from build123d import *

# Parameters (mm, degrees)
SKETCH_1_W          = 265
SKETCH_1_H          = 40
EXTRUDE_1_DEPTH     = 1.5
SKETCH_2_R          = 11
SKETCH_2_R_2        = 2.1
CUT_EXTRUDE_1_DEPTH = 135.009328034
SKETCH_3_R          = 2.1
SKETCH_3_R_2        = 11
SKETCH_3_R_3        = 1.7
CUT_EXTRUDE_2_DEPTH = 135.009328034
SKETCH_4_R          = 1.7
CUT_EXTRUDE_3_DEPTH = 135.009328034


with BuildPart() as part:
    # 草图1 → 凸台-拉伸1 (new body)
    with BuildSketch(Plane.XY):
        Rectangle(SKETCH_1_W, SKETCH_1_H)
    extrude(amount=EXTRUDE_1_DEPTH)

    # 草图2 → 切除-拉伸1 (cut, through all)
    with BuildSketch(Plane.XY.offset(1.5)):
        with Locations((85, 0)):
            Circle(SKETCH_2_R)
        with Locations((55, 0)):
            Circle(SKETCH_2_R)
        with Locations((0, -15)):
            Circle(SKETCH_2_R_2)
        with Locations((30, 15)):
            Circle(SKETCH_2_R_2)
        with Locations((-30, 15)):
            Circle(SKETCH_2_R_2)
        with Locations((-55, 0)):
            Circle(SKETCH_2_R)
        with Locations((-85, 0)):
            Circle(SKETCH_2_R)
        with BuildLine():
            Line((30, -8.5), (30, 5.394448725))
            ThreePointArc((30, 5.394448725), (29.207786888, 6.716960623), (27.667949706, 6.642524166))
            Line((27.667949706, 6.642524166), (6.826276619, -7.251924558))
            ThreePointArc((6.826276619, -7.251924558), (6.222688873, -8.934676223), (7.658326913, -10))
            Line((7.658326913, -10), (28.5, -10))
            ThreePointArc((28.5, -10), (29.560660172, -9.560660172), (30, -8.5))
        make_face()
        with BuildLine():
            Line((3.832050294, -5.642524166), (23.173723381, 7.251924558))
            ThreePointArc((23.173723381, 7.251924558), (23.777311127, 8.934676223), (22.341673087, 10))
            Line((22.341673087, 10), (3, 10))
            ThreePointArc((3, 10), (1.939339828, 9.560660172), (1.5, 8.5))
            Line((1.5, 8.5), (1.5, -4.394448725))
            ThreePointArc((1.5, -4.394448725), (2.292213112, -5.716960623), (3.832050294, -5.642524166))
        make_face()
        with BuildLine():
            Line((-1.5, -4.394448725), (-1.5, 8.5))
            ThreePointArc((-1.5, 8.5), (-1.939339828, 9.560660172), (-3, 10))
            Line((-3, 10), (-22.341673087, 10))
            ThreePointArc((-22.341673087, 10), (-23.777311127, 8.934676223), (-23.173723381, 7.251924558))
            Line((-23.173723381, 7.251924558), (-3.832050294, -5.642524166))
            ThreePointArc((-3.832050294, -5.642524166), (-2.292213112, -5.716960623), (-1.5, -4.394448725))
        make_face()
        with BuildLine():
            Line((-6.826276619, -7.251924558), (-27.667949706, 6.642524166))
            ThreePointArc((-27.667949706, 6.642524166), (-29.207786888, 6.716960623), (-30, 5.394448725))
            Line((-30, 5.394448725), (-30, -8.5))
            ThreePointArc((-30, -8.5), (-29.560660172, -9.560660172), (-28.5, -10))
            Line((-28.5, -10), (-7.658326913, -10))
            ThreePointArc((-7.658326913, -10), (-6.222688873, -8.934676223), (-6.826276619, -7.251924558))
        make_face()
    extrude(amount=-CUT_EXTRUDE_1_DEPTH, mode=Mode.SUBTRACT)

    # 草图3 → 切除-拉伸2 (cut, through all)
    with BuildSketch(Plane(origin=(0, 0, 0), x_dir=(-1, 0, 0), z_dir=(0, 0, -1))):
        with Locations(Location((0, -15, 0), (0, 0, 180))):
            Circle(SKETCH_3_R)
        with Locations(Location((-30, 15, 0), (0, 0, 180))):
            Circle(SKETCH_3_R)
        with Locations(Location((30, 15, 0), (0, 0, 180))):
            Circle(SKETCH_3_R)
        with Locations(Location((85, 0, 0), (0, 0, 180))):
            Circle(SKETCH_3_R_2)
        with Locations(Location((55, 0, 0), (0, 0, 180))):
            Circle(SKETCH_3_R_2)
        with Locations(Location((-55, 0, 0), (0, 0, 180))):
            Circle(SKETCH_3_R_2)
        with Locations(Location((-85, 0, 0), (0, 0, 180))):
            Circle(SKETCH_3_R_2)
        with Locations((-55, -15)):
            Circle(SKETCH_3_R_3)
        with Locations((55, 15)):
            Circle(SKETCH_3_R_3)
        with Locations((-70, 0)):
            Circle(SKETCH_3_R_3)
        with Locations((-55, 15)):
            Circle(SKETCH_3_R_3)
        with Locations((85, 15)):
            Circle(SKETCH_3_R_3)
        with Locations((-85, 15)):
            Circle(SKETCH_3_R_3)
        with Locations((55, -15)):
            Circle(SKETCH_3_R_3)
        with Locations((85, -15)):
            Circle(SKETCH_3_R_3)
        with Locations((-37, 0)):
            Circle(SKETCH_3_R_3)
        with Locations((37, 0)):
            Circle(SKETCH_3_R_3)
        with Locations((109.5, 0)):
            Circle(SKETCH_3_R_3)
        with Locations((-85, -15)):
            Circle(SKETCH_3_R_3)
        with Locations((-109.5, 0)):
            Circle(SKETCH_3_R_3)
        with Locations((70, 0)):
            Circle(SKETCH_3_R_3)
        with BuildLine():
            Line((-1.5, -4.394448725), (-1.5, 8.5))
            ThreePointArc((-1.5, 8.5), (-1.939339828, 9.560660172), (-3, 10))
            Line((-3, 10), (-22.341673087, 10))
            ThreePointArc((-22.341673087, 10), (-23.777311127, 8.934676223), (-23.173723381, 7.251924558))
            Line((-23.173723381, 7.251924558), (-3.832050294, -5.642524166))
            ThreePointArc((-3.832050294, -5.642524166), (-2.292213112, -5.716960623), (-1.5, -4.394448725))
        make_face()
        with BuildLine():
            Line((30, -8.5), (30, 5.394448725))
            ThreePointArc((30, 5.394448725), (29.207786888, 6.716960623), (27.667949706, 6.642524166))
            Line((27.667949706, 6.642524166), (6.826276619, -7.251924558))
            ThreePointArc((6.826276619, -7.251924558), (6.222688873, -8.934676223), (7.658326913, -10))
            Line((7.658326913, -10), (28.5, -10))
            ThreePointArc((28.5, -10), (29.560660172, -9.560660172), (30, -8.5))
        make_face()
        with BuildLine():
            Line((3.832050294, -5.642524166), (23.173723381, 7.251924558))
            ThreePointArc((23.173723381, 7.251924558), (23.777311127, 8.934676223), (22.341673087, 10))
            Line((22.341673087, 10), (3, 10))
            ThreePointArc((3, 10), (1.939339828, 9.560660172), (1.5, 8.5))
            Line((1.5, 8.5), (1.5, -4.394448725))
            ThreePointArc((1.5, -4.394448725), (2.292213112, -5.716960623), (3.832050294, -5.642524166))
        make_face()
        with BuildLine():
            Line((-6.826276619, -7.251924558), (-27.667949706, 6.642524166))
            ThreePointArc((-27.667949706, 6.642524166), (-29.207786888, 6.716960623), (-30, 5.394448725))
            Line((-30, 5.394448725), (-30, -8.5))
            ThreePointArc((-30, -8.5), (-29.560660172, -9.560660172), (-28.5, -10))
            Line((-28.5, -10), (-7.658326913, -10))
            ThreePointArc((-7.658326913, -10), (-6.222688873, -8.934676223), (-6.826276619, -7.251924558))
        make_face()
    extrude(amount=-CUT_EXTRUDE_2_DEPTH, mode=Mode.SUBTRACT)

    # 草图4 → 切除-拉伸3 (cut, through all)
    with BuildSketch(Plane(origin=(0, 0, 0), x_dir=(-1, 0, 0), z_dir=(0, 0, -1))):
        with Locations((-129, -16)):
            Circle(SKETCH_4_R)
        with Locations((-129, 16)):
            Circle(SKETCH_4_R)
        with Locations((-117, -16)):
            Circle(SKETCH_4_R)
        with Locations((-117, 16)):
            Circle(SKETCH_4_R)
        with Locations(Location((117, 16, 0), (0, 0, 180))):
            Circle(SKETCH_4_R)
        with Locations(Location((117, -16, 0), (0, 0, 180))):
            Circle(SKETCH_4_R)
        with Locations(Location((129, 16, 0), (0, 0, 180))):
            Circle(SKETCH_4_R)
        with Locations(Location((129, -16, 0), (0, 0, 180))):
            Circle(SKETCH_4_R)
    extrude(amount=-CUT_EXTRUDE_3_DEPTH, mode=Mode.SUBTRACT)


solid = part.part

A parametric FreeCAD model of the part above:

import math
import FreeCAD as App
import Part
import Sketcher

V = App.Vector
Q = App.Units.Quantity

doc = App.newDocument("Part")
body = doc.addObject("PartDesign::Body", "Body")

# Sketch on XY plane
sketch1 = body.newObject("Sketcher::SketchObject", "Sketch")
sketch1.AttachmentSupport = (doc.getObject("XY_Plane"), [""])
sketch1.MapMode = "FlatFace"
sketch1.addGeometry([
    Part.LineSegment(V(-132, 20, 0), V(-132, -20, 0)),
    Part.LineSegment(V(-132, -20, 0), V(132, -20, 0)),
    Part.LineSegment(V(132, -20, 0), V(132, 20, 0)),
    Part.LineSegment(V(132, 20, 0), V(-132, 20, 0)),
], False)
sketch1.addConstraint([
    Sketcher.Constraint("Coincident", 0, 2, 1, 1),
    Sketcher.Constraint("Coincident", 1, 2, 2, 1),
    Sketcher.Constraint("Coincident", 2, 2, 3, 1),
    Sketcher.Constraint("Coincident", 3, 2, 0, 1),
    Sketcher.Constraint("Vertical", 0),
    Sketcher.Constraint("Horizontal", 1),
    Sketcher.Constraint("Vertical", 2),
    Sketcher.Constraint("Horizontal", 3),
    Sketcher.Constraint("Symmetric", 0, 2, 2, 2, -1, 1),
    Sketcher.Constraint("DistanceX", 1, 1, 1, 2, Q("265 mm")),
    Sketcher.Constraint("DistanceY", 0, 2, 0, 1, Q("40 mm")),
])
pad1 = body.newObject("PartDesign::Pad", "Pad")
pad1.Profile = sketch1
pad1.Length = 1.5

# Sketch on XY plane
sketch2 = body.newObject("Sketcher::SketchObject", "Sketch001")
sketch2.AttachmentSupport = (doc.getObject("XY_Plane"), [""])
sketch2.MapMode = "FlatFace"
sketch2.AttachmentOffset = App.Placement(V(0, 0, 1.5), App.Rotation())
sketch2.addGeometry([
    Part.Circle(V(85, 0, 0), V(0, 0, 1), 11),  # 0
    Part.Circle(V(55, 0, 0), V(0, 0, 1), 11),  # 1
    Part.Circle(V(0, -15, 0), V(0, 0, 1), 2.1),  # 2
    Part.Circle(V(30, 15, 0), V(0, 0, 1), 2.1),  # 3
    Part.Circle(V(-30, 15, 0), V(0, 0, 1), 2.1),  # 4
    Part.Circle(V(-55, 0, 0), V(0, 0, 1), 11),  # 5
    Part.Circle(V(-85, 0, 0), V(0, 0, 1), 11),  # 6
    Part.LineSegment(V(30, -8.5, 0), V(30, 5.4, 0)),  # 7
    Part.ArcOfCircle(Part.Circle(V(28.5, 5.4, 0), V(0, 0, 1), 1.5), math.radians(0), math.radians(124)),  # 8
    Part.LineSegment(V(27.7, 6.6, 0), V(6.8, -7.3, 0)),  # 9
    Part.ArcOfCircle(Part.Circle(V(7.7, -8.5, 0), V(0, 0, 1), 1.5), math.radians(124), math.radians(270)),  # 10
    Part.LineSegment(V(7.7, -10, 0), V(28.5, -10, 0)),  # 11
    Part.ArcOfCircle(Part.Circle(V(28.5, -8.5, 0), V(0, 0, 1), 1.5), math.radians(-90), math.radians(0)),  # 12
    Part.LineSegment(V(3.8, -5.6, 0), V(23.2, 7.3, 0)),  # 13
    Part.ArcOfCircle(Part.Circle(V(22.3, 8.5, 0), V(0, 0, 1), 1.5), math.radians(-56), math.radians(90)),  # 14
    Part.LineSegment(V(22.3, 10, 0), V(3, 10, 0)),  # 15
    Part.ArcOfCircle(Part.Circle(V(3, 8.5, 0), V(0, 0, 1), 1.5), math.radians(90), math.radians(180)),  # 16
    Part.LineSegment(V(1.5, 8.5, 0), V(1.5, -4.4, 0)),  # 17
    Part.ArcOfCircle(Part.Circle(V(3, -4.4, 0), V(0, 0, 1), 1.5), math.radians(180), math.radians(304)),  # 18
    Part.LineSegment(V(-1.5, -4.4, 0), V(-1.5, 8.5, 0)),  # 19
    Part.ArcOfCircle(Part.Circle(V(-3, 8.5, 0), V(0, 0, 1), 1.5), math.radians(0), math.radians(90)),  # 20
    Part.LineSegment(V(-3, 10, 0), V(-22.3, 10, 0)),  # 21
    Part.ArcOfCircle(Part.Circle(V(-22.3, 8.5, 0), V(0, 0, 1), 1.5), math.radians(90), math.radians(236)),  # 22
    Part.LineSegment(V(-23.2, 7.3, 0), V(-3.8, -5.6, 0)),  # 23
    Part.ArcOfCircle(Part.Circle(V(-3, -4.4, 0), V(0, 0, 1), 1.5), math.radians(-124), math.radians(0)),  # 24
    Part.LineSegment(V(-6.8, -7.3, 0), V(-27.7, 6.6, 0)),  # 25
    Part.ArcOfCircle(Part.Circle(V(-28.5, 5.4, 0), V(0, 0, 1), 1.5), math.radians(56), math.radians(180)),  # 26
    Part.LineSegment(V(-30, 5.4, 0), V(-30, -8.5, 0)),  # 27
    Part.ArcOfCircle(Part.Circle(V(-28.5, -8.5, 0), V(0, 0, 1), 1.5), math.radians(180), math.radians(270)),  # 28
    Part.LineSegment(V(-28.5, -10, 0), V(-7.7, -10, 0)),  # 29
    Part.ArcOfCircle(Part.Circle(V(-7.7, -8.5, 0), V(0, 0, 1), 1.5), math.radians(-90), math.radians(56)),  # 30
], False)
sketch2.addConstraint([
    Sketcher.Constraint("Tangent", 7, 2, 8, 1),
    Sketcher.Constraint("Tangent", 8, 2, 9, 1),
    Sketcher.Constraint("Tangent", 9, 2, 10, 1),
    Sketcher.Constraint("Tangent", 10, 2, 11, 1),
    Sketcher.Constraint("Tangent", 11, 2, 12, 1),
    Sketcher.Constraint("Tangent", 12, 2, 7, 1),
    Sketcher.Constraint("Tangent", 13, 2, 14, 1),
    Sketcher.Constraint("Tangent", 14, 2, 15, 1),
    Sketcher.Constraint("Tangent", 15, 2, 16, 1),
    Sketcher.Constraint("Tangent", 16, 2, 17, 1),
    Sketcher.Constraint("Tangent", 17, 2, 18, 1),
    Sketcher.Constraint("Tangent", 18, 2, 13, 1),
    Sketcher.Constraint("Tangent", 19, 2, 20, 1),
    Sketcher.Constraint("Tangent", 20, 2, 21, 1),
    Sketcher.Constraint("Tangent", 21, 2, 22, 1),
    Sketcher.Constraint("Tangent", 22, 2, 23, 1),
    Sketcher.Constraint("Tangent", 23, 2, 24, 1),
    Sketcher.Constraint("Tangent", 24, 2, 19, 1),
    Sketcher.Constraint("Tangent", 25, 2, 26, 1),
    Sketcher.Constraint("Tangent", 26, 2, 27, 1),
    Sketcher.Constraint("Tangent", 27, 2, 28, 1),
    Sketcher.Constraint("Tangent", 28, 2, 29, 1),
    Sketcher.Constraint("Tangent", 29, 2, 30, 1),
    Sketcher.Constraint("Tangent", 30, 2, 25, 1),
    Sketcher.Constraint("Vertical", 7),
    Sketcher.Constraint("Horizontal", 11),
    Sketcher.Constraint("Horizontal", 15),
    Sketcher.Constraint("Vertical", 17),
    Sketcher.Constraint("Vertical", 19),
    Sketcher.Constraint("Horizontal", 21),
    Sketcher.Constraint("Vertical", 27),
    Sketcher.Constraint("Horizontal", 29),
    Sketcher.Constraint("Equal", 0, 1),
    Sketcher.Constraint("Equal", 2, 3),
    Sketcher.Constraint("Equal", 3, 4),
    Sketcher.Constraint("Equal", 1, 5),
    Sketcher.Constraint("Equal", 5, 6),
    Sketcher.Constraint("Equal", 8, 10),
    Sketcher.Constraint("Equal", 10, 12),
    Sketcher.Constraint("Equal", 12, 14),
    Sketcher.Constraint("Equal", 14, 16),
    Sketcher.Constraint("Equal", 16, 18),
    Sketcher.Constraint("Equal", 18, 20),
    Sketcher.Constraint("Equal", 20, 22),
    Sketcher.Constraint("Equal", 22, 24),
    Sketcher.Constraint("Equal", 24, 26),
    Sketcher.Constraint("Equal", 26, 28),
    Sketcher.Constraint("Equal", 28, 30),
    Sketcher.Constraint("Symmetric", 1, 3, 5, 3, -1, 1),
    Sketcher.Constraint("Symmetric", 0, 3, 6, 3, -1, 1),
    Sketcher.Constraint("Symmetric", 3, 3, 4, 3, -2),
    Sketcher.Constraint("Symmetric", 16, 3, 20, 3, -2),
    Sketcher.Constraint("Symmetric", 8, 3, 26, 3, -2),
    Sketcher.Constraint("Symmetric", 10, 3, 30, 3, -2),
    Sketcher.Constraint("Symmetric", 13, 2, 22, 2, -2),
    Sketcher.Constraint("PointOnObject", 0, 3, -1),
    Sketcher.Constraint("PointOnObject", 1, 3, -1),
    Sketcher.Constraint("PointOnObject", 2, 3, -2),
    Sketcher.Constraint("Parallel", 9, 13),
    Sketcher.Constraint("Vertical", 3, 3, 7, 2),
    Sketcher.Constraint("Diameter", 0, Q("22 mm")),
    Sketcher.Constraint("Diameter", 2, Q("4.2 mm")),
    Sketcher.Constraint("Radius", 8, Q("1.5 mm")),
    Sketcher.Constraint("DistanceX", -1, 1, 0, 3, Q("85 mm")),
    Sketcher.Constraint("DistanceX", -1, 1, 1, 3, Q("55 mm")),
    Sketcher.Constraint("DistanceY", 2, 3, -1, 1, Q("15 mm")),
    Sketcher.Constraint("DistanceX", -1, 1, 3, 3, Q("30 mm")),
    Sketcher.Constraint("DistanceY", -1, 1, 3, 3, Q("15 mm")),
    Sketcher.Constraint("DistanceX", -1, 1, 16, 3, Q("3 mm")),
    Sketcher.Constraint("DistanceY", 10, 2, -1, 1, Q("10 mm")),
    Sketcher.Constraint("DistanceY", -1, 1, 14, 2, Q("10 mm")),
    Sketcher.Constraint("Distance", 13, Q("23.245798 mm")),
    Sketcher.Constraint("DistanceY", 7, 1, 7, 2, Q("13.894449 mm")),
    Sketcher.Constraint("DistanceY", 17, 2, 17, 1, Q("12.894449 mm")),
])
pocket1 = body.newObject("PartDesign::Pocket", "Pocket")
pocket1.Profile = sketch2
pocket1.Type = "ThroughAll"

# Sketch on XY plane
sketch3 = body.newObject("Sketcher::SketchObject", "Sketch002")
sketch3.AttachmentSupport = (doc.getObject("XY_Plane"), [""])
sketch3.MapMode = "FlatFace"
sketch3.addGeometry([
    Part.Circle(V(0, -15, 0), V(0, 0, 1), 2.1),  # 0
    Part.Circle(V(30, 15, 0), V(0, 0, 1), 2.1),  # 1
    Part.Circle(V(-30, 15, 0), V(0, 0, 1), 2.1),  # 2
    Part.Circle(V(-85, 0, 0), V(0, 0, 1), 11),  # 3
    Part.Circle(V(-55, 0, 0), V(0, 0, 1), 11),  # 4
    Part.Circle(V(55, 0, 0), V(0, 0, 1), 11),  # 5
    Part.Circle(V(85, 0, 0), V(0, 0, 1), 11),  # 6
    Part.Circle(V(55, -15, 0), V(0, 0, 1), 1.7),  # 7
    Part.Circle(V(-55, 15, 0), V(0, 0, 1), 1.7),  # 8
    Part.Circle(V(70, 0, 0), V(0, 0, 1), 1.7),  # 9
    Part.Circle(V(55, 15, 0), V(0, 0, 1), 1.7),  # 10
    Part.Circle(V(-85, 15, 0), V(0, 0, 1), 1.7),  # 11
    Part.Circle(V(85, 15, 0), V(0, 0, 1), 1.7),  # 12
    Part.Circle(V(-55, -15, 0), V(0, 0, 1), 1.7),  # 13
    Part.Circle(V(-85, -15, 0), V(0, 0, 1), 1.7),  # 14
    Part.Circle(V(37, 0, 0), V(0, 0, 1), 1.7),  # 15
    Part.Circle(V(-37, 0, 0), V(0, 0, 1), 1.7),  # 16
    Part.Circle(V(-109.5, 0, 0), V(0, 0, 1), 1.7),  # 17
    Part.Circle(V(85, -15, 0), V(0, 0, 1), 1.7),  # 18
    Part.Circle(V(109.5, 0, 0), V(0, 0, 1), 1.7),  # 19
    Part.Circle(V(-70, 0, 0), V(0, 0, 1), 1.7),  # 20
    Part.LineSegment(V(1.5, -4.4, 0), V(1.5, 8.5, 0)),  # 21
    Part.ArcOfCircle(Part.Circle(V(3, 8.5, 0), V(0, 0, 1), 1.5), math.radians(90), math.radians(180)),  # 22
    Part.LineSegment(V(3, 10, 0), V(22.3, 10, 0)),  # 23
    Part.ArcOfCircle(Part.Circle(V(22.3, 8.5, 0), V(0, 0, 1), 1.5), math.radians(-56), math.radians(90)),  # 24
    Part.LineSegment(V(23.2, 7.3, 0), V(3.8, -5.6, 0)),  # 25
    Part.ArcOfCircle(Part.Circle(V(3, -4.4, 0), V(0, 0, 1), 1.5), math.radians(180), math.radians(304)),  # 26
    Part.LineSegment(V(-30, -8.5, 0), V(-30, 5.4, 0)),  # 27
    Part.ArcOfCircle(Part.Circle(V(-28.5, 5.4, 0), V(0, 0, 1), 1.5), math.radians(56), math.radians(180)),  # 28
    Part.LineSegment(V(-27.7, 6.6, 0), V(-6.8, -7.3, 0)),  # 29
    Part.ArcOfCircle(Part.Circle(V(-7.7, -8.5, 0), V(0, 0, 1), 1.5), math.radians(-90), math.radians(56)),  # 30
    Part.LineSegment(V(-7.7, -10, 0), V(-28.5, -10, 0)),  # 31
    Part.ArcOfCircle(Part.Circle(V(-28.5, -8.5, 0), V(0, 0, 1), 1.5), math.radians(180), math.radians(270)),  # 32
    Part.LineSegment(V(-3.8, -5.6, 0), V(-23.2, 7.3, 0)),  # 33
    Part.ArcOfCircle(Part.Circle(V(-22.3, 8.5, 0), V(0, 0, 1), 1.5), math.radians(90), math.radians(236)),  # 34
    Part.LineSegment(V(-22.3, 10, 0), V(-3, 10, 0)),  # 35
    Part.ArcOfCircle(Part.Circle(V(-3, 8.5, 0), V(0, 0, 1), 1.5), math.radians(0), math.radians(90)),  # 36
    Part.LineSegment(V(-1.5, 8.5, 0), V(-1.5, -4.4, 0)),  # 37
    Part.ArcOfCircle(Part.Circle(V(-3, -4.4, 0), V(0, 0, 1), 1.5), math.radians(-124), math.radians(0)),  # 38
    Part.LineSegment(V(6.8, -7.3, 0), V(27.7, 6.6, 0)),  # 39
    Part.ArcOfCircle(Part.Circle(V(28.5, 5.4, 0), V(0, 0, 1), 1.5), math.radians(0), math.radians(124)),  # 40
    Part.LineSegment(V(30, 5.4, 0), V(30, -8.5, 0)),  # 41
    Part.ArcOfCircle(Part.Circle(V(28.5, -8.5, 0), V(0, 0, 1), 1.5), math.radians(-90), math.radians(0)),  # 42
    Part.LineSegment(V(28.5, -10, 0), V(7.7, -10, 0)),  # 43
    Part.ArcOfCircle(Part.Circle(V(7.7, -8.5, 0), V(0, 0, 1), 1.5), math.radians(124), math.radians(270)),  # 44
], False)
sketch3.addConstraint([
    Sketcher.Constraint("Tangent", 21, 2, 22, 2),
    Sketcher.Constraint("Tangent", 22, 1, 23, 1),
    Sketcher.Constraint("Tangent", 23, 2, 24, 2),
    Sketcher.Constraint("Tangent", 24, 1, 25, 1),
    Sketcher.Constraint("Tangent", 25, 2, 26, 2),
    Sketcher.Constraint("Tangent", 26, 1, 21, 1),
    Sketcher.Constraint("Tangent", 27, 2, 28, 2),
    Sketcher.Constraint("Tangent", 28, 1, 29, 1),
    Sketcher.Constraint("Tangent", 29, 2, 30, 2),
    Sketcher.Constraint("Tangent", 30, 1, 31, 1),
    Sketcher.Constraint("Tangent", 31, 2, 32, 2),
    Sketcher.Constraint("Tangent", 32, 1, 27, 1),
    Sketcher.Constraint("Tangent", 33, 2, 34, 2),
    Sketcher.Constraint("Tangent", 34, 1, 35, 1),
    Sketcher.Constraint("Tangent", 35, 2, 36, 2),
    Sketcher.Constraint("Tangent", 36, 1, 37, 1),
    Sketcher.Constraint("Tangent", 37, 2, 38, 2),
    Sketcher.Constraint("Tangent", 38, 1, 33, 1),
    Sketcher.Constraint("Tangent", 39, 2, 40, 2),
    Sketcher.Constraint("Tangent", 40, 1, 41, 1),
    Sketcher.Constraint("Tangent", 41, 2, 42, 2),
    Sketcher.Constraint("Tangent", 42, 1, 43, 1),
    Sketcher.Constraint("Tangent", 43, 2, 44, 2),
    Sketcher.Constraint("Tangent", 44, 1, 39, 1),
    Sketcher.Constraint("Vertical", 21),
    Sketcher.Constraint("Horizontal", 23),
    Sketcher.Constraint("Vertical", 27),
    Sketcher.Constraint("Horizontal", 31),
    Sketcher.Constraint("Horizontal", 35),
    Sketcher.Constraint("Vertical", 37),
    Sketcher.Constraint("Vertical", 41),
    Sketcher.Constraint("Horizontal", 43),
    Sketcher.Constraint("Equal", 0, 1),
    Sketcher.Constraint("Equal", 1, 2),
    Sketcher.Constraint("Equal", 3, 4),
    Sketcher.Constraint("Equal", 4, 5),
    Sketcher.Constraint("Equal", 5, 6),
    Sketcher.Constraint("Equal", 7, 8),
    Sketcher.Constraint("Equal", 8, 9),
    Sketcher.Constraint("Equal", 9, 10),
    Sketcher.Constraint("Equal", 10, 11),
    Sketcher.Constraint("Equal", 11, 12),
    Sketcher.Constraint("Equal", 12, 13),
    Sketcher.Constraint("Equal", 13, 14),
    Sketcher.Constraint("Equal", 14, 15),
    Sketcher.Constraint("Equal", 15, 16),
    Sketcher.Constraint("Equal", 16, 17),
    Sketcher.Constraint("Equal", 17, 18),
    Sketcher.Constraint("Equal", 18, 19),
    Sketcher.Constraint("Equal", 19, 20),
    Sketcher.Constraint("Equal", 22, 24),
    Sketcher.Constraint("Equal", 24, 26),
    Sketcher.Constraint("Equal", 26, 28),
    Sketcher.Constraint("Equal", 28, 30),
    Sketcher.Constraint("Equal", 30, 32),
    Sketcher.Constraint("Equal", 32, 34),
    Sketcher.Constraint("Equal", 34, 36),
    Sketcher.Constraint("Equal", 36, 38),
    Sketcher.Constraint("Equal", 38, 40),
    Sketcher.Constraint("Equal", 40, 42),
    Sketcher.Constraint("Equal", 42, 44),
    Sketcher.Constraint("Symmetric", 4, 3, 5, 3, -1, 1),
    Sketcher.Constraint("Symmetric", 3, 3, 6, 3, -1, 1),
    Sketcher.Constraint("Symmetric", 7, 3, 8, 3, -1, 1),
    Sketcher.Constraint("Symmetric", 10, 3, 13, 3, -1, 1),
    Sketcher.Constraint("Symmetric", 12, 3, 14, 3, -1, 1),
    Sketcher.Constraint("Symmetric", 15, 3, 16, 3, -1, 1),
    Sketcher.Constraint("Symmetric", 11, 3, 18, 3, -1, 1),
    Sketcher.Constraint("Symmetric", 17, 3, 19, 3, -1, 1),
    Sketcher.Constraint("Symmetric", 9, 3, 20, 3, -1, 1),
    Sketcher.Constraint("Symmetric", 1, 3, 2, 3, -2),
    Sketcher.Constraint("Symmetric", 8, 3, 10, 3, -2),
    Sketcher.Constraint("Symmetric", 11, 3, 12, 3, -2),
    Sketcher.Constraint("Symmetric", 24, 3, 34, 3, -2),
    Sketcher.Constraint("Symmetric", 26, 3, 38, 3, -2),
    Sketcher.Constraint("Symmetric", 28, 3, 40, 3, -2),
    Sketcher.Constraint("Symmetric", 30, 3, 44, 3, -2),
    Sketcher.Constraint("PointOnObject", 0, 3, -2),
    Sketcher.Constraint("PointOnObject", 3, 3, -1),
    Sketcher.Constraint("PointOnObject", 4, 3, -1),
    Sketcher.Constraint("PointOnObject", 9, 3, -1),
    Sketcher.Constraint("PointOnObject", 15, 3, -1),
    Sketcher.Constraint("PointOnObject", 17, 3, -1),
    Sketcher.Constraint("Parallel", 29, 33),
    Sketcher.Constraint("Horizontal", 0, 3, 7, 3),
    Sketcher.Constraint("Horizontal", 2, 3, 8, 3),
    Sketcher.Constraint("Horizontal", 10, 3, 11, 3),
    Sketcher.Constraint("Vertical", 5, 3, 7, 3),
    Sketcher.Constraint("Vertical", 3, 3, 11, 3),
    Sketcher.Constraint("Vertical", 2, 3, 27, 2),
    Sketcher.Constraint("Diameter", 3, Q("22 mm")),
    Sketcher.Constraint("Diameter", 0, Q("4.2 mm")),
    Sketcher.Constraint("Diameter", 7, Q("3.4 mm")),
    Sketcher.Constraint("Radius", 22, Q("1.5 mm")),
    Sketcher.Constraint("DistanceY", 0, 3, -1, 1, Q("15 mm")),
    Sketcher.Constraint("DistanceX", -1, 1, 1, 3, Q("30 mm")),
    Sketcher.Constraint("DistanceX", 3, 3, -1, 1, Q("85 mm")),
    Sketcher.Constraint("DistanceX", 4, 3, -1, 1, Q("55 mm")),
    Sketcher.Constraint("DistanceX", -1, 1, 9, 3, Q("70 mm")),
    Sketcher.Constraint("DistanceX", -1, 1, 15, 3, Q("37 mm")),
    Sketcher.Constraint("DistanceX", -1, 1, 22, 3, Q("3 mm")),
    Sketcher.Constraint("DistanceY", -1, 1, 22, 1, Q("10 mm")),
    Sketcher.Constraint("DistanceY", 30, 1, -1, 1, Q("10 mm")),
    Sketcher.Constraint("DistanceX", 17, 3, -1, 1, Q("109.5 mm")),
    Sketcher.Constraint("Distance", 25, Q("23.245798 mm")),
    Sketcher.Constraint("DistanceY", 21, 1, 21, 2, Q("12.894449 mm")),
    Sketcher.Constraint("DistanceY", 27, 1, 27, 2, Q("13.894449 mm")),
])
pocket2 = body.newObject("PartDesign::Pocket", "Pocket001")
pocket2.Profile = sketch3
pocket2.Type = "ThroughAll"
pocket2.Reversed = True

# Sketch on XY plane
sketch4 = body.newObject("Sketcher::SketchObject", "Sketch003")
sketch4.AttachmentSupport = (doc.getObject("XY_Plane"), [""])
sketch4.MapMode = "FlatFace"
sketch4.addGeometry([
    Part.Circle(V(129, -16, 0), V(0, 0, 1), 1.7),  # 0
    Part.Circle(V(129, 16, 0), V(0, 0, 1), 1.7),  # 1
    Part.Circle(V(117, -16, 0), V(0, 0, 1), 1.7),  # 2
    Part.Circle(V(117, 16, 0), V(0, 0, 1), 1.7),  # 3
    Part.Circle(V(-117, 16, 0), V(0, 0, 1), 1.7),  # 4
    Part.Circle(V(-117, -16, 0), V(0, 0, 1), 1.7),  # 5
    Part.Circle(V(-129, 16, 0), V(0, 0, 1), 1.7),  # 6
    Part.Circle(V(-129, -16, 0), V(0, 0, 1), 1.7),  # 7
], False)
sketch4.addConstraint([
    Sketcher.Constraint("Equal", 0, 1),
    Sketcher.Constraint("Equal", 1, 2),
    Sketcher.Constraint("Equal", 2, 3),
    Sketcher.Constraint("Equal", 3, 4),
    Sketcher.Constraint("Equal", 4, 5),
    Sketcher.Constraint("Equal", 5, 6),
    Sketcher.Constraint("Equal", 6, 7),
    Sketcher.Constraint("Symmetric", 2, 3, 4, 3, -1, 1),
    Sketcher.Constraint("Symmetric", 3, 3, 5, 3, -1, 1),
    Sketcher.Constraint("Symmetric", 0, 3, 6, 3, -1, 1),
    Sketcher.Constraint("Symmetric", 1, 3, 7, 3, -1, 1),
    Sketcher.Constraint("Symmetric", 3, 3, 4, 3, -2),
    Sketcher.Constraint("Symmetric", 1, 3, 6, 3, -2),
    Sketcher.Constraint("Horizontal", 0, 3, 2, 3),
    Sketcher.Constraint("Diameter", 0, Q("3.4 mm")),
    Sketcher.Constraint("DistanceX", -1, 1, 0, 3, Q("129 mm")),
    Sketcher.Constraint("DistanceY", 0, 3, -1, 1, Q("16 mm")),
    Sketcher.Constraint("DistanceX", -1, 1, 2, 3, Q("117 mm")),
])
pocket3 = body.newObject("PartDesign::Pocket", "Pocket002")
pocket3.Profile = sketch4
pocket3.Type = "ThroughAll"
pocket3.Reversed = True

doc.recompute()
